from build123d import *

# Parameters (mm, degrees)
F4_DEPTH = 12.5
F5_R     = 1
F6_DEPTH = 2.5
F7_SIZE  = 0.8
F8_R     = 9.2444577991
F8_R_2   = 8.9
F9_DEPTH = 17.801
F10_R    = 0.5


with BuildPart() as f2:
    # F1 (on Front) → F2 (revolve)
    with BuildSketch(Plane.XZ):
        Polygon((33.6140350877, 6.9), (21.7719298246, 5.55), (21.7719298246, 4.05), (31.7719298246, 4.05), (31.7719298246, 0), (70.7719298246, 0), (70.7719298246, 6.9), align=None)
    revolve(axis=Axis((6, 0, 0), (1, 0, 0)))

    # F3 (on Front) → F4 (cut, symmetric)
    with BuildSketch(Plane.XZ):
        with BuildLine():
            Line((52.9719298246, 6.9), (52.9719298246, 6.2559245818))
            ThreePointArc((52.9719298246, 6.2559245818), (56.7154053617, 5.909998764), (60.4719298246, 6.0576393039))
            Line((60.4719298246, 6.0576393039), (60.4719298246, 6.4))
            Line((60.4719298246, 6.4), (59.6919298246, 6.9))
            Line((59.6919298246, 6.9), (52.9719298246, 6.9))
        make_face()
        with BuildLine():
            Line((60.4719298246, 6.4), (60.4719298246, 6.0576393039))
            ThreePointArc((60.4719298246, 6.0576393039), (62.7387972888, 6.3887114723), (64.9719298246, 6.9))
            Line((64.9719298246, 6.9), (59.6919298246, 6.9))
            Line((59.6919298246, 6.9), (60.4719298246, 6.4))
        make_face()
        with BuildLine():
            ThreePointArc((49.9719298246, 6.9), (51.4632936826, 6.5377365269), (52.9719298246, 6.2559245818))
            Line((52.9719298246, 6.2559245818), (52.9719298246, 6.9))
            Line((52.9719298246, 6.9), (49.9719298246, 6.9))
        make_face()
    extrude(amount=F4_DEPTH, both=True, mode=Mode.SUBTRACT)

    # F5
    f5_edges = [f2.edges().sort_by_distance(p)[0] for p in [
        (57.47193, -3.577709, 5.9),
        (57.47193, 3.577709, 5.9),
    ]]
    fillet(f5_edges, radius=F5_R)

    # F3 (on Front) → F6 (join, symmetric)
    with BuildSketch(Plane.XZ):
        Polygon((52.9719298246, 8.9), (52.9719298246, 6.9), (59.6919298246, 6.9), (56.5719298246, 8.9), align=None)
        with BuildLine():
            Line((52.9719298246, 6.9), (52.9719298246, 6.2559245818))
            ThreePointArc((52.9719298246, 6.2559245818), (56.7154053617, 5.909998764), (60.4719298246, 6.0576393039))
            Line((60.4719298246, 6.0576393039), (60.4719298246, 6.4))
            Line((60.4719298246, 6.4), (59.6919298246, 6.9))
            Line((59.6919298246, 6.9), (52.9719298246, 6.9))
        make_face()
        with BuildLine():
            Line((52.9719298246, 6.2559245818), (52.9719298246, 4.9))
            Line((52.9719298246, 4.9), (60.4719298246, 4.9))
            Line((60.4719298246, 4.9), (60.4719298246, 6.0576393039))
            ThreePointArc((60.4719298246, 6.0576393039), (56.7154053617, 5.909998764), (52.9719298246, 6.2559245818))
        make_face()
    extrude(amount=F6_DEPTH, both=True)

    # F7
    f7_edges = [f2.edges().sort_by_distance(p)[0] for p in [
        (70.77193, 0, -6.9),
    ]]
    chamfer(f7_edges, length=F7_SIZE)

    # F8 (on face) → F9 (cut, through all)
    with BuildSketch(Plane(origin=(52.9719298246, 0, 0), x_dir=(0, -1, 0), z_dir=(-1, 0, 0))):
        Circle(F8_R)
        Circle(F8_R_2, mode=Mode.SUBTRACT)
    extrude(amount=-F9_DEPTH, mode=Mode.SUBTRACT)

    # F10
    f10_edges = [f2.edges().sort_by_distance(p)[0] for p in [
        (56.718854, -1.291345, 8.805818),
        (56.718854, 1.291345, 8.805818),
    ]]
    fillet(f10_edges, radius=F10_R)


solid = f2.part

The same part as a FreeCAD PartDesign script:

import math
import FreeCAD as App
import Part
import Sketcher


def edges_at(feature, points):
    """Names of the edges that pass closest to the given points."""
    edges = feature.Shape.Edges
    near = lambda p: min(range(len(edges)), key=lambda i: edges[i].distToShape(Part.Vertex(*p))[0])
    return sorted({f"Edge{near(p) + 1}" for p in points})


def add_polygon(sketch, points):
    """Adds a closed chain of lines whose ends are joined by coincident constraints."""
    first, n = sketch.GeometryCount, len(points)
    for a, b in zip(points, points[1:] + points[:1]):
        sketch.addGeometry(Part.LineSegment(App.Vector(*a, 0), App.Vector(*b, 0)), False)
    for i in range(n):
        sketch.addConstraint(Sketcher.Constraint("Coincident", first + i, 2, first + (i + 1) % n, 1))

doc = App.newDocument("Part")
body = doc.addObject("PartDesign::Body", "Body")

sketch1 = body.newObject("Sketcher::SketchObject", "Sketch")
sketch1.AttachmentSupport = (doc.getObject("XZ_Plane"), [""])
sketch1.MapMode = "FlatFace"
add_polygon(sketch1, [(33.6, 6.9), (21.8, 5.5), (21.8, 4), (31.8, 4), (31.8, 0), (70.8, 0), (70.8, 6.9)])
sketch1.addConstraint([
    Sketcher.Constraint("Vertical", 1),
    Sketcher.Constraint("Horizontal", 2),
    Sketcher.Constraint("Vertical", 3),
    Sketcher.Constraint("Horizontal", 4),
    Sketcher.Constraint("Vertical", 5),
    Sketcher.Constraint("Horizontal", 6),
    Sketcher.Constraint("PointOnObject", 3, 2, -1),
    Sketcher.Constraint("DistanceX", 2, 1, 2, 2, 10.0),
    Sketcher.Constraint("DistanceX", 4, 1, 4, 2, 39.0),
    Sketcher.Constraint("DistanceY", 1, 2, 1, 1, 1.5),
    Sketcher.Constraint("DistanceY", 5, 1, 5, 2, 6.9),
    Sketcher.Constraint("DistanceY", 3, 2, 3, 1, 4.05),
    Sketcher.Constraint("DistanceX", 6, 2, 6, 1, 37.157895),
    Sketcher.Constraint("DistanceX", -1, 1, 0, 2, 21.77193),
])
revolution = body.newObject("PartDesign::Revolution", "Revolution")
revolution.Profile = sketch1
revolution.ReferenceAxis = (sketch1, ["H_Axis"])
revolution.Angle = 360

sketch2 = body.newObject("Sketcher::SketchObject", "Sketch001")
sketch2.AttachmentSupport = (doc.getObject("XZ_Plane"), [""])
sketch2.MapMode = "FlatFace"
sketch2.addGeometry([
    Part.ArcOfCircle(Part.Circle(App.Vector(57.5, 34.5, 0), App.Vector(0, 0, 1), 28.6), math.radians(-99.04), math.radians(-83.98)),
    Part.ArcOfCircle(Part.Circle(App.Vector(57.5, 34.5, 0), App.Vector(0, 0, 1), 28.6), math.radians(-83.98), math.radians(-74.81)),
    Part.LineSegment(App.Vector(65, 6.9, 0), App.Vector(50, 6.9, 0)),
    Part.ArcOfCircle(Part.Circle(App.Vector(57.5, 34.5, 0), App.Vector(0, 0, 1), 28.6), math.radians(-105.19), math.radians(-99.04)),
], False)
sketch2.addConstraint([
    Sketcher.Constraint("Tangent", 0, 2, 1, 1),
    Sketcher.Constraint("Coincident", 1, 2, 2, 1),
    Sketcher.Constraint("Coincident", 2, 2, 3, 1),
    Sketcher.Constraint("Tangent", 3, 2, 0, 1),
    Sketcher.Constraint("Horizontal", 2),
    Sketcher.Constraint("Equal", 0, 1),
    Sketcher.Constraint("Equal", 1, 3),
    Sketcher.Constraint("DistanceX", 2, 2, 2, 1, 15.0),
    Sketcher.Constraint("Radius", 0, 28.625),
    Sketcher.Constraint("DistanceX", 0, 3, 0, 2, 3.0),
    Sketcher.Constraint("DistanceX", 2, 2, 3, 2, 3.0),
    Sketcher.Constraint("DistanceY", -1, 1, 1, 2, 6.9),
    Sketcher.Constraint("DistanceX", -1, 1, 0, 3, 57.47193),
])
pocket1 = body.newObject("PartDesign::Pocket", "Pocket")
pocket1.Profile = sketch2
pocket1.Length = 25
pocket1.Midplane = True
doc.recompute()

fillet = body.newObject("PartDesign::Fillet", "Fillet")
fillet.Base = (pocket1, edges_at(pocket1, [(56.69, -3.56, 5.911), (56.69, 3.56, 5.911)]))
fillet.Radius = 1

sketch3 = body.newObject("Sketcher::SketchObject", "Sketch002")
sketch3.AttachmentSupport = (doc.getObject("XZ_Plane"), [""])
sketch3.MapMode = "FlatFace"
add_polygon(sketch3, [(53, 8.9), (53, 4.9), (60.5, 4.9), (60.5, 6.4), (56.6, 8.9)])
sketch3.addConstraint([
    Sketcher.Constraint("Vertical", 0),
    Sketcher.Constraint("Horizontal", 1),
    Sketcher.Constraint("Vertical", 2),
    Sketcher.Constraint("Horizontal", 4),
    Sketcher.Constraint("DistanceY", 0, 2, 0, 1, 4.0),
    Sketcher.Constraint("DistanceX", 1, 1, 1, 2, 7.5),
    Sketcher.Constraint("DistanceX", 4, 2, 4, 1, 3.6),
    Sketcher.Constraint("DistanceY", 2, 1, 2, 2, 1.5),
    Sketcher.Constraint("DistanceY", -1, 1, 0, 2, 4.9),
    Sketcher.Constraint("DistanceX", -1, 1, 0, 2, 52.97193),
])
pad1 = body.newObject("PartDesign::Pad", "Pad")
pad1.Profile = sketch3
pad1.Length = 5
pad1.Midplane = True
doc.recompute()

chamfer = body.newObject("PartDesign::Chamfer", "Chamfer")
chamfer.Base = (pad1, edges_at(pad1, [(70.772, 0, -6.9)]))
chamfer.Size = 0.8

sketch4 = body.newObject("Sketcher::SketchObject", "Sketch003")
sketch4.AttachmentSupport = (doc.getObject("YZ_Plane"), [""])
sketch4.MapMode = "FlatFace"
sketch4.AttachmentOffset = App.Placement(App.Vector(0, 0, 52.97193), App.Rotation())
sketch4.addGeometry([
    Part.Circle(App.Vector(0, 0, 0), App.Vector(0, 0, 1), 9),
    Part.Circle(App.Vector(0, 0, 0), App.Vector(0, 0, 1), 9),
], False)
sketch4.addConstraint([
    Sketcher.Constraint("Coincident", 0, 3, -1, 1),
    Sketcher.Constraint("Coincident", 1, 3, -1, 1),
    Sketcher.Constraint("Diameter", 1, 17.8),
    Sketcher.Constraint("Diameter", 0, 18.488916),
])
pocket2 = body.newObject("PartDesign::Pocket", "Pocket001")
pocket2.Profile = sketch4
pocket2.Type = "ThroughAll"
pocket2.Reversed = True
doc.recompute()

fillet2 = body.newObject("PartDesign::Fillet", "Fillet001")
fillet2.Base = (pocket2, edges_at(pocket2, [(56.719, -1.291, 8.806), (56.719, 1.291, 8.806)]))
fillet2.Radius = 0.5

doc.recompute()
